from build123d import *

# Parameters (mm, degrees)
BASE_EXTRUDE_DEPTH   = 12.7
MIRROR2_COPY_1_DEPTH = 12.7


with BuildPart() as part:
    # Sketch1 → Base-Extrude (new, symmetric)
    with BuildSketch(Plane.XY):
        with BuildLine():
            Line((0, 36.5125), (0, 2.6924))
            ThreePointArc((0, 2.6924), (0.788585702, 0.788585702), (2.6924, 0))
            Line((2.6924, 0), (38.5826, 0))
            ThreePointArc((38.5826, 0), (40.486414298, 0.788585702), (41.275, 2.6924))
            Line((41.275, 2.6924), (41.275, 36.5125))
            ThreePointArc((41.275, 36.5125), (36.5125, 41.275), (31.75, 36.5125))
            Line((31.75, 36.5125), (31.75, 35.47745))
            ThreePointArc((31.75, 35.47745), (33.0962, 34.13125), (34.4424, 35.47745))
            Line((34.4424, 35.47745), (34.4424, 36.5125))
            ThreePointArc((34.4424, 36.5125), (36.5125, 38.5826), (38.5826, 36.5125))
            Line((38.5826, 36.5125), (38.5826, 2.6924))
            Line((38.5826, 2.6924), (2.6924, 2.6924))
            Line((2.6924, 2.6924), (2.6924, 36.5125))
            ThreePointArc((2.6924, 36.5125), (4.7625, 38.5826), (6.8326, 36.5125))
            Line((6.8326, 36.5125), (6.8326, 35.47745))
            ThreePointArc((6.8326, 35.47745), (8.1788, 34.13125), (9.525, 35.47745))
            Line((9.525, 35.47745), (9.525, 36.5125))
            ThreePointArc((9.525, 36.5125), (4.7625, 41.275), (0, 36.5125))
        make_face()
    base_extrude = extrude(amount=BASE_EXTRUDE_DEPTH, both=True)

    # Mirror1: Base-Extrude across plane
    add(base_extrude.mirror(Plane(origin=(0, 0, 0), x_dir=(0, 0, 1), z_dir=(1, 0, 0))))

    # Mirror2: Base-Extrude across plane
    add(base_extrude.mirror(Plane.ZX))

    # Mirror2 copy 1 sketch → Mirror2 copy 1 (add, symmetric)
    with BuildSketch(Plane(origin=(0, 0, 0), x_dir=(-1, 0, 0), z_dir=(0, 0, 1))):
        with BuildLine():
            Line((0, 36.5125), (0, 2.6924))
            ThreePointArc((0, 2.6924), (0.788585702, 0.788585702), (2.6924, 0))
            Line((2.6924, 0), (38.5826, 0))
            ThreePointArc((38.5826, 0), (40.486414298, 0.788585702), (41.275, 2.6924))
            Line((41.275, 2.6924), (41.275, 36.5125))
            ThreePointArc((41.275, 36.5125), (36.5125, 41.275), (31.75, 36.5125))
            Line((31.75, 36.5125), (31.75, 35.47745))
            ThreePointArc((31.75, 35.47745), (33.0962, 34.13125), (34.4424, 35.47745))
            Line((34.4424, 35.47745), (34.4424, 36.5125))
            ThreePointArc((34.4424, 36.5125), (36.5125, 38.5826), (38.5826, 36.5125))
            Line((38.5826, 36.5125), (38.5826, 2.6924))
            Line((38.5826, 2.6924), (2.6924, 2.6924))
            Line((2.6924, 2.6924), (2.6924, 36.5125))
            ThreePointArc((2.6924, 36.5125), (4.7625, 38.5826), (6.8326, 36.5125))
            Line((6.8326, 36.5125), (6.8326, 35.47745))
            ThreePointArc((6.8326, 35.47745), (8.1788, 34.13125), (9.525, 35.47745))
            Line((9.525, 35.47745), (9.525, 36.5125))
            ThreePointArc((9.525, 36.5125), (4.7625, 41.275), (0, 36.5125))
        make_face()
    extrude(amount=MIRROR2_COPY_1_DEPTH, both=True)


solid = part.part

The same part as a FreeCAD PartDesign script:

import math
import FreeCAD as App
import Part
import Sketcher
from FreeCAD import Vector
Q = App.Units.Quantity

doc = App.newDocument("Part")
body = doc.addObject("PartDesign::Body", "Body")

# Sketch on XY plane
sketch1 = body.newObject("Sketcher::SketchObject", "Sketch")
sketch1.AttachmentSupport = (doc.getObject("XY_Plane"), [""])
sketch1.MapMode = "FlatFace"
sketch1.addGeometry([
    Part.LineSegment(Vector(0, 36.5125, 0), Vector(0, 2.6924, 0)),  # 0
    Part.ArcOfCircle(Part.Circle(Vector(2.6924, 2.6924, 0), Vector(0, 0, 1), 2.6924), math.radians(180), math.radians(270)),  # 1
    Part.LineSegment(Vector(2.6924, 0, 0), Vector(38.5826, 0, 0)),  # 2
    Part.ArcOfCircle(Part.Circle(Vector(38.5826, 2.6924, 0), Vector(0, 0, 1), 2.6924), math.radians(-90), math.radians(0)),  # 3
    Part.LineSegment(Vector(41.275, 2.6924, 0), Vector(41.275, 36.5125, 0)),  # 4
    Part.ArcOfCircle(Part.Circle(Vector(36.5125, 36.5125, 0), Vector(0, 0, 1), 4.7625), math.radians(0), math.radians(180)),  # 5
    Part.LineSegment(Vector(31.75, 36.5125, 0), Vector(31.75, 35.47745, 0)),  # 6
    Part.ArcOfCircle(Part.Circle(Vector(33.0962, 35.47745, 0), Vector(0, 0, 1), 1.3462), math.radians(180), math.radians(360)),  # 7
    Part.LineSegment(Vector(34.4424, 35.47745, 0), Vector(34.4424, 36.5125, 0)),  # 8
    Part.ArcOfCircle(Part.Circle(Vector(36.5125, 36.5125, 0), Vector(0, 0, 1), 2.0701), math.radians(0), math.radians(180)),  # 9
    Part.LineSegment(Vector(38.5826, 36.5125, 0), Vector(38.5826, 2.6924, 0)),  # 10
    Part.LineSegment(Vector(38.5826, 2.6924, 0), Vector(2.6924, 2.6924, 0)),  # 11
    Part.LineSegment(Vector(2.6924, 2.6924, 0), Vector(2.6924, 36.5125, 0)),  # 12
    Part.ArcOfCircle(Part.Circle(Vector(4.7625, 36.5125, 0), Vector(0, 0, 1), 2.0701), math.radians(0), math.radians(180)),  # 13
    Part.LineSegment(Vector(6.8326, 36.5125, 0), Vector(6.8326, 35.47745, 0)),  # 14
    Part.ArcOfCircle(Part.Circle(Vector(8.1788, 35.47745, 0), Vector(0, 0, 1), 1.3462), math.radians(180), math.radians(360)),  # 15
    Part.LineSegment(Vector(9.525, 35.47745, 0), Vector(9.525, 36.5125, 0)),  # 16
    Part.ArcOfCircle(Part.Circle(Vector(4.7625, 36.5125, 0), Vector(0, 0, 1), 4.7625), math.radians(0), math.radians(180)),  # 17
], False)
sketch1.addConstraint([
    Sketcher.Constraint("Tangent", 0, 2, 1, 1),
    Sketcher.Constraint("Tangent", 1, 2, 2, 1),
    Sketcher.Constraint("Tangent", 2, 2, 3, 1),
    Sketcher.Constraint("Tangent", 3, 2, 4, 1),
    Sketcher.Constraint("Tangent", 4, 2, 5, 1),
    Sketcher.Constraint("Tangent", 5, 2, 6, 1),
    Sketcher.Constraint("Tangent", 6, 2, 7, 1),
    Sketcher.Constraint("Tangent", 7, 2, 8, 1),
    Sketcher.Constraint("Tangent", 8, 2, 9, 2),
    Sketcher.Constraint("Tangent", 9, 1, 10, 1),
    Sketcher.Constraint("Coincident", 10, 2, 11, 1),
    Sketcher.Constraint("Coincident", 11, 2, 12, 1),
    Sketcher.Constraint("Tangent", 12, 2, 13, 2),
    Sketcher.Constraint("Tangent", 13, 1, 14, 1),
    Sketcher.Constraint("Tangent", 14, 2, 15, 1),
    Sketcher.Constraint("Tangent", 15, 2, 16, 1),
    Sketcher.Constraint("Tangent", 16, 2, 17, 1),
    Sketcher.Constraint("Tangent", 17, 2, 0, 1),
    Sketcher.Constraint("Vertical", 0),
    Sketcher.Constraint("Horizontal", 2),
    Sketcher.Constraint("Vertical", 4),
    Sketcher.Constraint("Vertical", 6),
    Sketcher.Constraint("Vertical", 8),
    Sketcher.Constraint("Vertical", 10),
    Sketcher.Constraint("Horizontal", 11),
    Sketcher.Constraint("Vertical", 12),
    Sketcher.Constraint("Vertical", 14),
    Sketcher.Constraint("Vertical", 16),
    Sketcher.Constraint("Coincident", 9, 3, 5, 3),
    Sketcher.Constraint("Coincident", 17, 3, 13, 3),
    Sketcher.Constraint("Coincident", 10, 2, 3, 3),
    Sketcher.Constraint("Coincident", 11, 2, 1, 3),
    Sketcher.Constraint("Equal", 9, 13),
    Sketcher.Constraint("PointOnObject", 0, 2, -2),
    Sketcher.Constraint("PointOnObject", 1, 2, -1),
    Sketcher.Constraint("Horizontal", 9, 3, 13, 3),
    Sketcher.Constraint("Horizontal", 7, 3, 15, 3),
    Sketcher.Constraint("Radius", 1, Q("0.106 in")),
    Sketcher.Constraint("Radius", 5, Q("0.1875 in")),
    Sketcher.Constraint("DistanceX", 2, 1, 2, 2, Q("1.413 in")),
    Sketcher.Constraint("DistanceY", 0, 2, 0, 1, Q("1.3315 in")),
    Sketcher.Constraint("DistanceY", 6, 2, 6, 1, Q("1.03505 mm")),
])
pad1 = body.newObject("PartDesign::Pad", "Pad")
pad1.Profile = sketch1
pad1.Length = Q("1 in")
pad1.Midplane = True
doc.recompute()

mirrored = body.newObject("PartDesign::Mirrored", "Mirrored")
mirrored.Originals = [pad1]
mirrored.MirrorPlane = (doc.getObject("YZ_Plane"), [""])
body.Tip = mirrored
doc.recompute()

mirrored2 = body.newObject("PartDesign::Mirrored", "Mirrored001")
mirrored2.Originals = [pad1]
mirrored2.MirrorPlane = (doc.getObject("XZ_Plane"), [""])
body.Tip = mirrored2

# Sketch on XY plane
sketch2 = body.newObject("Sketcher::SketchObject", "Sketch001")
sketch2.AttachmentSupport = (doc.getObject("XY_Plane"), [""])
sketch2.MapMode = "FlatFace"
sketch2.addGeometry([
    Part.LineSegment(Vector(0, -36.5125, 0), Vector(0, -2.6924, 0)),  # 0
    Part.ArcOfCircle(Part.Circle(Vector(-2.6924, -2.6924, 0), Vector(0, 0, 1), 2.6924), math.radians(0), math.radians(90)),  # 1
    Part.LineSegment(Vector(-2.6924, 0, 0), Vector(-38.5826, 0, 0)),  # 2
    Part.ArcOfCircle(Part.Circle(Vector(-38.5826, -2.6924, 0), Vector(0, 0, 1), 2.6924), math.radians(90), math.radians(180)),  # 3
    Part.LineSegment(Vector(-41.275, -2.6924, 0), Vector(-41.275, -36.5125, 0)),  # 4
    Part.ArcOfCircle(Part.Circle(Vector(-36.5125, -36.5125, 0), Vector(0, 0, 1), 4.7625), math.radians(180), math.radians(360)),  # 5
    Part.LineSegment(Vector(-31.75, -36.5125, 0), Vector(-31.75, -35.47745, 0)),  # 6
    Part.ArcOfCircle(Part.Circle(Vector(-33.0962, -35.47745, 0), Vector(0, 0, 1), 1.3462), math.radians(0), math.radians(180)),  # 7
    Part.LineSegment(Vector(-34.4424, -35.47745, 0), Vector(-34.4424, -36.5125, 0)),  # 8
    Part.ArcOfCircle(Part.Circle(Vector(-36.5125, -36.5125, 0), Vector(0, 0, 1), 2.0701), math.radians(180), math.radians(360)),  # 9
    Part.LineSegment(Vector(-38.5826, -36.5125, 0), Vector(-38.5826, -2.6924, 0)),  # 10
    Part.LineSegment(Vector(-38.5826, -2.6924, 0), Vector(-2.6924, -2.6924, 0)),  # 11
    Part.LineSegment(Vector(-2.6924, -2.6924, 0), Vector(-2.6924, -36.5125, 0)),  # 12
    Part.ArcOfCircle(Part.Circle(Vector(-4.7625, -36.5125, 0), Vector(0, 0, 1), 2.0701), math.radians(180), math.radians(360)),  # 13
    Part.LineSegment(Vector(-6.8326, -36.5125, 0), Vector(-6.8326, -35.47745, 0)),  # 14
    Part.ArcOfCircle(Part.Circle(Vector(-8.1788, -35.47745, 0), Vector(0, 0, 1), 1.3462), math.radians(0), math.radians(180)),  # 15
    Part.LineSegment(Vector(-9.525, -35.47745, 0), Vector(-9.525, -36.5125, 0)),  # 16
    Part.ArcOfCircle(Part.Circle(Vector(-4.7625, -36.5125, 0), Vector(0, 0, 1), 4.7625), math.radians(180), math.radians(360)),  # 17
], False)
sketch2.addConstraint([
    Sketcher.Constraint("Tangent", 0, 2, 1, 1),
    Sketcher.Constraint("Tangent", 1, 2, 2, 1),
    Sketcher.Constraint("Tangent", 2, 2, 3, 1),
    Sketcher.Constraint("Tangent", 3, 2, 4, 1),
    Sketcher.Constraint("Tangent", 4, 2, 5, 1),
    Sketcher.Constraint("Tangent", 5, 2, 6, 1),
    Sketcher.Constraint("Tangent", 6, 2, 7, 1),
    Sketcher.Constraint("Tangent", 7, 2, 8, 1),
    Sketcher.Constraint("Tangent", 8, 2, 9, 2),
    Sketcher.Constraint("Tangent", 9, 1, 10, 1),
    Sketcher.Constraint("Coincident", 10, 2, 11, 1),
    Sketcher.Constraint("Coincident", 11, 2, 12, 1),
    Sketcher.Constraint("Tangent", 12, 2, 13, 2),
    Sketcher.Constraint("Tangent", 13, 1, 14, 1),
    Sketcher.Constraint("Tangent", 14, 2, 15, 1),
    Sketcher.Constraint("Tangent", 15, 2, 16, 1),
    Sketcher.Constraint("Tangent", 16, 2, 17, 1),
    Sketcher.Constraint("Tangent", 17, 2, 0, 1),
    Sketcher.Constraint("Vertical", 0),
    Sketcher.Constraint("Horizontal", 2),
    Sketcher.Constraint("Vertical", 4),
    Sketcher.Constraint("Vertical", 6),
    Sketcher.Constraint("Vertical", 8),
    Sketcher.Constraint("Vertical", 10),
    Sketcher.Constraint("Horizontal", 11),
    Sketcher.Constraint("Vertical", 12),
    Sketcher.Constraint("Vertical", 14),
    Sketcher.Constraint("Vertical", 16),
    Sketcher.Constraint("Coincident", 9, 3, 5, 3),
    Sketcher.Constraint("Coincident", 17, 3, 13, 3),
    Sketcher.Constraint("Coincident", 10, 2, 3, 3),
    Sketcher.Constraint("Coincident", 11, 2, 1, 3),
    Sketcher.Constraint("Equal", 9, 13),
    Sketcher.Constraint("PointOnObject", 0, 2, -2),
    Sketcher.Constraint("PointOnObject", 1, 2, -1),
    Sketcher.Constraint("Horizontal", 9, 3, 13, 3),
    Sketcher.Constraint("Horizontal", 7, 3, 15, 3),
    Sketcher.Constraint("Radius", 1, Q("0.106 in")),
    Sketcher.Constraint("Radius", 5, Q("0.1875 in")),
    Sketcher.Constraint("DistanceX", 2, 2, 2, 1, Q("1.413 in")),
    Sketcher.Constraint("DistanceY", 0, 1, 0, 2, Q("1.3315 in")),
    Sketcher.Constraint("DistanceY", 6, 1, 6, 2, Q("1.03505 mm")),
])
pad2 = body.newObject("PartDesign::Pad", "Pad001")
pad2.Profile = sketch2
pad2.Length = Q("1 in")
pad2.Midplane = True

doc.recompute()
